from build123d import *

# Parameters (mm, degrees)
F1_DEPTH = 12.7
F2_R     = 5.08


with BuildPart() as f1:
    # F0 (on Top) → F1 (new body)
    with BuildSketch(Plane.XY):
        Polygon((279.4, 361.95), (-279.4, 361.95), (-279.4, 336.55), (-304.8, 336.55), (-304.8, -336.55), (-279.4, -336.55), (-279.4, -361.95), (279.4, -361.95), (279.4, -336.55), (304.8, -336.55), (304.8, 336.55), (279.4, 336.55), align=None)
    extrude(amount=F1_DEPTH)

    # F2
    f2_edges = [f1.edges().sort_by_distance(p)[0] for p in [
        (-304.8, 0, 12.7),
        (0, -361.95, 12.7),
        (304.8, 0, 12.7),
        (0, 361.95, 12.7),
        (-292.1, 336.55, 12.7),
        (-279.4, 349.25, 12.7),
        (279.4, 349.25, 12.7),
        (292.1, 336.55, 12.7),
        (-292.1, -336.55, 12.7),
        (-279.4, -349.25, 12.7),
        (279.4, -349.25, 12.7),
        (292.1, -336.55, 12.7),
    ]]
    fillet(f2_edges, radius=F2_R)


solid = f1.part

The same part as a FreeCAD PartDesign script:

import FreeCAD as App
import Part
import Sketcher
from FreeCAD import Vector
Q = App.Units.Quantity


def edges_at(feature, points):
    """Names of the edges that pass closest to the given points."""
    edges = feature.Shape.Edges
    near = lambda p: min(range(len(edges)), key=lambda i: edges[i].distToShape(Part.Vertex(*p))[0])
    return sorted({f"Edge{near(p) + 1}" for p in points})


def add_polygon(sketch, points):
    """Adds a closed chain of lines whose ends are joined by coincident constraints."""
    first, n = sketch.GeometryCount, len(points)
    for a, b in zip(points, points[1:] + points[:1]):
        sketch.addGeometry(Part.LineSegment(App.Vector(*a, 0), App.Vector(*b, 0)), False)
    for i in range(n):
        sketch.addConstraint(Sketcher.Constraint("Coincident", first + i, 2, first + (i + 1) % n, 1))

doc = App.newDocument("Part")
body = doc.addObject("PartDesign::Body", "Body")

sketch1 = doc.addObject("Sketcher::SketchObject", "Sketch")
body.addObject(sketch1)
sketch1.AttachmentSupport = (doc.XY_Plane, [""])
sketch1.MapMode = "FlatFace"
add_polygon(sketch1, [(279, 362), (-279, 362), (-279, 337), (-305, 337), (-305, -337), (-279, -337), (-279, -362), (279, -362), (279, -337), (305, -337), (305, 337), (279, 337)])
sketch1.addConstraint(Sketcher.Constraint("Horizontal", 0))
sketch1.addConstraint(Sketcher.Constraint("Vertical", 1))
sketch1.addConstraint(Sketcher.Constraint("Horizontal", 2))
sketch1.addConstraint(Sketcher.Constraint("Vertical", 3))
sketch1.addConstraint(Sketcher.Constraint("Horizontal", 4))
sketch1.addConstraint(Sketcher.Constraint("Vertical", 5))
sketch1.addConstraint(Sketcher.Constraint("Horizontal", 6))
sketch1.addConstraint(Sketcher.Constraint("Vertical", 7))
sketch1.addConstraint(Sketcher.Constraint("Horizontal", 8))
sketch1.addConstraint(Sketcher.Constraint("Vertical", 9))
sketch1.addConstraint(Sketcher.Constraint("Horizontal", 10))
sketch1.addConstraint(Sketcher.Constraint("Vertical", 11))
sketch1.addConstraint(Sketcher.Constraint("Symmetric", 0, 2, 6, 2, -1, 1))
sketch1.addConstraint(Sketcher.Constraint("Symmetric", 2, 2, 8, 2, -1, 1))
sketch1.addConstraint(Sketcher.Constraint("Symmetric", 4, 2, 10, 2, -1, 1))
sketch1.addConstraint(Sketcher.Constraint("Symmetric", 4, 2, 7, 2, -2))
sketch1.addConstraint(Sketcher.Constraint("Equal", 10, 1))
sketch1.addConstraint(Sketcher.Constraint("DistanceX", 0, 2, 0, 1, Q("22 in")))
sketch1.addConstraint(Sketcher.Constraint("DistanceX", 2, 2, 2, 1, Q("1 in")))
sketch1.addConstraint(Sketcher.Constraint("DistanceY", 3, 2, 3, 1, Q("26.5 in")))
pad1 = doc.addObject("PartDesign::Pad", "Pad")
body.addObject(pad1)
pad1.Profile = sketch1
pad1.Length = Q("0.5 in")
doc.recompute()

fillet = doc.addObject("PartDesign::Fillet", "Fillet")
body.addObject(fillet)
fillet.Base = (pad1, edges_at(pad1, [
    (-304.8, 0, 12.7),
    (0, -361.95, 12.7),
    (304.8, 0, 12.7),
    (0, 361.95, 12.7),
    (-292.1, 336.55, 12.7),
    (-279.4, 349.25, 12.7),
    (279.4, 349.25, 12.7),
    (292.1, 336.55, 12.7),
    (-292.1, -336.55, 12.7),
    (-279.4, -349.25, 12.7),
    (279.4, -349.25, 12.7),
    (292.1, -336.55, 12.7),
]))
fillet.Radius = Q("0.2 in")

doc.recompute()
